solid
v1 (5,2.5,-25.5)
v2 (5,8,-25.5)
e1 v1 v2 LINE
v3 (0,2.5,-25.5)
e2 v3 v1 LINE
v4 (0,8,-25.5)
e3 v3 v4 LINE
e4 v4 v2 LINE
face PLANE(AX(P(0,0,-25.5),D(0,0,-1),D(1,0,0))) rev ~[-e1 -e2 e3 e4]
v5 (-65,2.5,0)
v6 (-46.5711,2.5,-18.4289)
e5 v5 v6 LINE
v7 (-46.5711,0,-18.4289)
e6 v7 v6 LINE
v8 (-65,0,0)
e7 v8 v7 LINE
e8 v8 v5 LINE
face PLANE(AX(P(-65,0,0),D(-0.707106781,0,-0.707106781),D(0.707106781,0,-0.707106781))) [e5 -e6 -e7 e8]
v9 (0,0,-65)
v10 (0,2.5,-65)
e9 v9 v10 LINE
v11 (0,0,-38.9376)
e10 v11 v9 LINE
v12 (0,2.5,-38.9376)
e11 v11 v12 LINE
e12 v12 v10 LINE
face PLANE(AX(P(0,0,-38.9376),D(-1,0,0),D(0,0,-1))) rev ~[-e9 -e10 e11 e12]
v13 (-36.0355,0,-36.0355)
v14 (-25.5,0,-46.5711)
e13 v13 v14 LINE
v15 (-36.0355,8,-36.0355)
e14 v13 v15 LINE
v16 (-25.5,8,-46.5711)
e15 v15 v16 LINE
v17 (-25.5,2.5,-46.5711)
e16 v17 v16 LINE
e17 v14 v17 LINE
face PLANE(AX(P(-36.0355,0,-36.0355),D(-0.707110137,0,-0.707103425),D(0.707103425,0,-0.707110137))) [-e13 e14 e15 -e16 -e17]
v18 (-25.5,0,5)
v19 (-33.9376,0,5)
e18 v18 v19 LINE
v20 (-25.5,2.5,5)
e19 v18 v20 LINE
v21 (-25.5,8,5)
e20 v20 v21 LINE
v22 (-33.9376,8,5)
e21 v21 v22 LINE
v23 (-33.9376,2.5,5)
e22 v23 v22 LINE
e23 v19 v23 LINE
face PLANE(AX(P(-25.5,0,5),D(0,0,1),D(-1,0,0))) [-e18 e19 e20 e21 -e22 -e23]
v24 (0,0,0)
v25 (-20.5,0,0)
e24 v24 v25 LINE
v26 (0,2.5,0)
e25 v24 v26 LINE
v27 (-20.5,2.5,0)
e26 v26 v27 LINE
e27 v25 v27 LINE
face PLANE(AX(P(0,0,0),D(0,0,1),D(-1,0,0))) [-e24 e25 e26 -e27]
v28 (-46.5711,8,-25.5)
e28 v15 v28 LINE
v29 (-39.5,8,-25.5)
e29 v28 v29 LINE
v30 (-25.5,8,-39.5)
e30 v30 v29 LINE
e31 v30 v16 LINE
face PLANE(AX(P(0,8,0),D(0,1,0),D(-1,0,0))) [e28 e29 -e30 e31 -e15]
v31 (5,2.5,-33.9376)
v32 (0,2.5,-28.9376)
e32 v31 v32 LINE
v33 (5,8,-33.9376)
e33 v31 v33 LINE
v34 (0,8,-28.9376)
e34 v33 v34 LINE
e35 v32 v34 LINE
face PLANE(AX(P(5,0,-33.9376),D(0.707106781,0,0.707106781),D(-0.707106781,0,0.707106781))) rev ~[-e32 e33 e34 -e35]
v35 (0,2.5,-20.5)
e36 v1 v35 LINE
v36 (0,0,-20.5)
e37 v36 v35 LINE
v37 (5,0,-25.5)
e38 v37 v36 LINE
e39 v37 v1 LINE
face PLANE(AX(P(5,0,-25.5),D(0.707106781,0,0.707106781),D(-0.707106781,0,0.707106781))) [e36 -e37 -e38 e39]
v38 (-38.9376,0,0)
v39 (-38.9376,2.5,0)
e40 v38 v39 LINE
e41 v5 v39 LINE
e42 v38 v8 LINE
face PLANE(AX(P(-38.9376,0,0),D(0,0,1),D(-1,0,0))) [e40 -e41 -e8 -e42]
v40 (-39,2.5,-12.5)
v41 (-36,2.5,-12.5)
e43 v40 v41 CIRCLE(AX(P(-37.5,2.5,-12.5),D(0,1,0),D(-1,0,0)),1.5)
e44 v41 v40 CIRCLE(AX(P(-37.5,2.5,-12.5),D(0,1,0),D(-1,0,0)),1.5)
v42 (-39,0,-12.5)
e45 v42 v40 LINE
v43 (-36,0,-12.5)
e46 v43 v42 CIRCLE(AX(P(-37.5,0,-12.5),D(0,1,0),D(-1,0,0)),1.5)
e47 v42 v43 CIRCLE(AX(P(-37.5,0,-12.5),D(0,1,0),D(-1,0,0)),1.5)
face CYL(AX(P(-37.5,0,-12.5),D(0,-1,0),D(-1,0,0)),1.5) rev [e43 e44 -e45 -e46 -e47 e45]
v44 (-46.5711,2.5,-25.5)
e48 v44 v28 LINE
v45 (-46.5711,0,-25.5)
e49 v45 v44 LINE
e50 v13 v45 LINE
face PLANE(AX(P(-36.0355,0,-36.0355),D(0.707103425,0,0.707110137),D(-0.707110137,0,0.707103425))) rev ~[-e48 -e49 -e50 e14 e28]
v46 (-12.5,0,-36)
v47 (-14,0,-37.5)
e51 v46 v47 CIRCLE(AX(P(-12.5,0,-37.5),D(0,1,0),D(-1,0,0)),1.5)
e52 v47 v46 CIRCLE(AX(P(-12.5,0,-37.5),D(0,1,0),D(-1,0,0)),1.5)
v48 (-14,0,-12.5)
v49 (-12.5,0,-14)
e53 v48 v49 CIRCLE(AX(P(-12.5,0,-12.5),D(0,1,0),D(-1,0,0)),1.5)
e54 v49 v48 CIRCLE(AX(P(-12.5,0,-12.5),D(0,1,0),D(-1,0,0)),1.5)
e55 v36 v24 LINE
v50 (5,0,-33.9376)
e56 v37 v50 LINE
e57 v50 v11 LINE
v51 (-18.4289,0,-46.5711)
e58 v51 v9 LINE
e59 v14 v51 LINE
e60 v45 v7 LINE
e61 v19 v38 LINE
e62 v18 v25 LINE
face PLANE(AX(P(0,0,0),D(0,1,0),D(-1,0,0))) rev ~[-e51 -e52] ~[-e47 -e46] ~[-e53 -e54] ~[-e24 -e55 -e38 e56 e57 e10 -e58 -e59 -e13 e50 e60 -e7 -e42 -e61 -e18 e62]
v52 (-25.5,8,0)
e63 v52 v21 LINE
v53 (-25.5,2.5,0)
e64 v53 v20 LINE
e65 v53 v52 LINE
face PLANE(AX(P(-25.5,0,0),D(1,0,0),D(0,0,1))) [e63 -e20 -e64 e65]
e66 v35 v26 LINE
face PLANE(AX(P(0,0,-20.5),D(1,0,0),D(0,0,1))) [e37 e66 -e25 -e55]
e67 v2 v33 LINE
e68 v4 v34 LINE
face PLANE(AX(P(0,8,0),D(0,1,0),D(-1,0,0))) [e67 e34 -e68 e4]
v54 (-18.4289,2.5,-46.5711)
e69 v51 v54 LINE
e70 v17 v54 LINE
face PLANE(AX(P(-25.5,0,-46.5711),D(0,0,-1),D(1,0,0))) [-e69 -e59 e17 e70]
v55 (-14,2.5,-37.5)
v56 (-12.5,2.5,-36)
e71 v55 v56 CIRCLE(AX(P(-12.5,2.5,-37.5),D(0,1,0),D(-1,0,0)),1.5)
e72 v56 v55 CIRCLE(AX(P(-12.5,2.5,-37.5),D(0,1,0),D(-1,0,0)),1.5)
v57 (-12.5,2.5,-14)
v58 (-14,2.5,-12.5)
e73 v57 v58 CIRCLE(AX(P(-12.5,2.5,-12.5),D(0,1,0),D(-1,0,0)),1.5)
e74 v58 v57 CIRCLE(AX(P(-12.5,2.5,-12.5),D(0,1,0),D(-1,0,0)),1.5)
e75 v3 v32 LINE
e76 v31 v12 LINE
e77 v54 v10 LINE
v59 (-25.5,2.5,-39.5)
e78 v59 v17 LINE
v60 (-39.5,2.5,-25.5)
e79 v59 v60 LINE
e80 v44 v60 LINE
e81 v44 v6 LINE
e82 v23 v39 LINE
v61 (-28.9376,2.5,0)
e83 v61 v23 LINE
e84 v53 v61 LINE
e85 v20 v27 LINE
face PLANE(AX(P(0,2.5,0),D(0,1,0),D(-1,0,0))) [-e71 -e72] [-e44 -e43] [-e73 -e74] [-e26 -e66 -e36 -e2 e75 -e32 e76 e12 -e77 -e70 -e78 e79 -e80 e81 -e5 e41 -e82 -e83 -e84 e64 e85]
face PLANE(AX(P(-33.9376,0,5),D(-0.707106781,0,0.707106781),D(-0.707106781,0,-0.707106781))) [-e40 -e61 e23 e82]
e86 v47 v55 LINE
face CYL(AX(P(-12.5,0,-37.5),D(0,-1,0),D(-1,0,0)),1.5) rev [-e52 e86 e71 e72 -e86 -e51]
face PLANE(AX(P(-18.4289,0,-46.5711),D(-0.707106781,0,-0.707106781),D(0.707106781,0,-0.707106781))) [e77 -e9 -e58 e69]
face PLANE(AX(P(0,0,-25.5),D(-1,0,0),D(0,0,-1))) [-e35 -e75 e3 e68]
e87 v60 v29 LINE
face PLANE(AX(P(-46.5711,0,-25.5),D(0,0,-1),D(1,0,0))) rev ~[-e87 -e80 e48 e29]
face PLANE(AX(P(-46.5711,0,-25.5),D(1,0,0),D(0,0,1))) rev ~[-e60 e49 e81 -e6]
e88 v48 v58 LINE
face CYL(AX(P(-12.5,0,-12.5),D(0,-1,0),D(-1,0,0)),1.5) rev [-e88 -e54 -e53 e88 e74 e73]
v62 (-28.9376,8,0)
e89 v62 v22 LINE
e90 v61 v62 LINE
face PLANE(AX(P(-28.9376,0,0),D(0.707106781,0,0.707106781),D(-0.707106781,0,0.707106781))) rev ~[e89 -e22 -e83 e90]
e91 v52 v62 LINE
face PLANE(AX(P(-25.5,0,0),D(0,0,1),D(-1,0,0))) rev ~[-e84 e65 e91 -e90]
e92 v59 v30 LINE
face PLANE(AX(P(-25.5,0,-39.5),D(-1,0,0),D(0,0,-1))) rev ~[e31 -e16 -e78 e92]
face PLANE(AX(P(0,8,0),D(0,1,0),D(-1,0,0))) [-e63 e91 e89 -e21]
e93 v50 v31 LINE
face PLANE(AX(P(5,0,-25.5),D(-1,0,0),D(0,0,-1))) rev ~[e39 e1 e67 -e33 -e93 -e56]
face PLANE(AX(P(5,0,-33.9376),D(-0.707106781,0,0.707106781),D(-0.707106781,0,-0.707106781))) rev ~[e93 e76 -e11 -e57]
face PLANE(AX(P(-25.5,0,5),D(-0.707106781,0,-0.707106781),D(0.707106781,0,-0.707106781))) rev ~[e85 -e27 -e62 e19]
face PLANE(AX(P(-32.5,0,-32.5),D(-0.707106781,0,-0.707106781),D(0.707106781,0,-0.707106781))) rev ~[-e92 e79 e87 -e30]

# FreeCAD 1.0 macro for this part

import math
import FreeCAD as App
import Part
import Sketcher

V = App.Vector

doc = App.newDocument("Part")
body = doc.addObject("PartDesign::Body", "Body")

sketch1 = body.newObject("Sketcher::SketchObject", "Sketch")
sketch1.AttachmentSupport = (doc.getObject("XZ_Plane"), [""])
sketch1.MapMode = "FlatFace"
sketch1.addGeometry(Part.LineSegment(V(-20.5, 0, 0), V(0, 0, 0)), False)
sketch1.addGeometry(Part.LineSegment(V(0, 0, 0), V(0, -20.5, 0)), False)
sketch1.addGeometry(Part.LineSegment(V(0, -20.5, 0), V(5, -25.5, 0)), False)
sketch1.addGeometry(Part.LineSegment(V(5, -25.5, 0), V(0, -25.5, 0)), False)
sketch1.addGeometry(Part.LineSegment(V(0, -25.5, 0), V(0, -28.9, 0)), False)
sketch1.addGeometry(Part.LineSegment(V(0, -28.9, 0), V(5, -33.9, 0)), False)
sketch1.addGeometry(Part.LineSegment(V(5, -33.9, 0), V(0, -38.9, 0)), False)
sketch1.addGeometry(Part.LineSegment(V(0, -38.9, 0), V(0, -65, 0)), False)
sketch1.addGeometry(Part.LineSegment(V(0, -65, 0), V(-18.4, -46.6, 0)), False)
sketch1.addGeometry(Part.LineSegment(V(-18.4, -46.6, 0), V(-25.5, -46.6, 0)), False)
sketch1.addGeometry(Part.LineSegment(V(-25.5, -46.6, 0), V(-25.5, -39.5, 0)), False)
sketch1.addGeometry(Part.LineSegment(V(-25.5, -39.5, 0), V(-39.5, -25.5, 0)), False)
sketch1.addGeometry(Part.LineSegment(V(-39.5, -25.5, 0), V(-46.6, -25.5, 0)), False)
sketch1.addGeometry(Part.LineSegment(V(-46.6, -25.5, 0), V(-46.6, -18.4, 0)), False)
sketch1.addGeometry(Part.LineSegment(V(-46.6, -18.4, 0), V(-65, 0, 0)), False)
sketch1.addGeometry(Part.LineSegment(V(-65, 0, 0), V(-38.9, 0, 0)), False)
sketch1.addGeometry(Part.LineSegment(V(-38.9, 0, 0), V(-33.9, 5, 0)), False)
sketch1.addGeometry(Part.LineSegment(V(-33.9, 5, 0), V(-28.9, 0, 0)), False)
sketch1.addGeometry(Part.LineSegment(V(-28.9, 0, 0), V(-25.5, 0, 0)), False)
sketch1.addGeometry(Part.LineSegment(V(-25.5, 0, 0), V(-25.5, 5, 0)), False)
sketch1.addGeometry(Part.LineSegment(V(-25.5, 5, 0), V(-20.5, 0, 0)), False)
sketch1.addGeometry(Part.Circle(V(-12.5, -37.5, 0), V(0, 0, 1), 1.5), False)
sketch1.addGeometry(Part.ArcOfCircle(Part.Circle(V(-12.5, -12.5, 0), V(0, 0, 1), 1.5), math.radians(-90), math.radians(180)), False)
sketch1.addGeometry(Part.ArcOfCircle(Part.Circle(V(-12.5, -12.5, 0), V(0, 0, 1), 1.5), math.radians(180), math.radians(270)), False)
sketch1.addGeometry(Part.Circle(V(-37.5, -12.5, 0), V(0, 0, 1), 1.5), False)
sketch1.addConstraint(Sketcher.Constraint("Coincident", 0, 2, 1, 1))
sketch1.addConstraint(Sketcher.Constraint("Coincident", 1, 2, 2, 1))
sketch1.addConstraint(Sketcher.Constraint("Coincident", 2, 2, 3, 1))
sketch1.addConstraint(Sketcher.Constraint("Coincident", 3, 2, 4, 1))
sketch1.addConstraint(Sketcher.Constraint("Coincident", 4, 2, 5, 1))
sketch1.addConstraint(Sketcher.Constraint("Coincident", 5, 2, 6, 1))
sketch1.addConstraint(Sketcher.Constraint("Coincident", 6, 2, 7, 1))
sketch1.addConstraint(Sketcher.Constraint("Coincident", 7, 2, 8, 1))
sketch1.addConstraint(Sketcher.Constraint("Coincident", 8, 2, 9, 1))
sketch1.addConstraint(Sketcher.Constraint("Coincident", 9, 2, 10, 1))
sketch1.addConstraint(Sketcher.Constraint("Coincident", 10, 2, 11, 1))
sketch1.addConstraint(Sketcher.Constraint("Coincident", 11, 2, 12, 1))
sketch1.addConstraint(Sketcher.Constraint("Coincident", 12, 2, 13, 1))
sketch1.addConstraint(Sketcher.Constraint("Coincident", 13, 2, 14, 1))
sketch1.addConstraint(Sketcher.Constraint("Coincident", 14, 2, 15, 1))
sketch1.addConstraint(Sketcher.Constraint("Coincident", 15, 2, 16, 1))
sketch1.addConstraint(Sketcher.Constraint("Coincident", 16, 2, 17, 1))
sketch1.addConstraint(Sketcher.Constraint("Coincident", 17, 2, 18, 1))
sketch1.addConstraint(Sketcher.Constraint("Coincident", 18, 2, 19, 1))
sketch1.addConstraint(Sketcher.Constraint("Coincident", 19, 2, 20, 1))
sketch1.addConstraint(Sketcher.Constraint("Coincident", 20, 2, 0, 1))
sketch1.addConstraint(Sketcher.Constraint("Tangent", 22, 1, 23, 2))
sketch1.addConstraint(Sketcher.Constraint("Coincident", 23, 1, 22, 2))
sketch1.addConstraint(Sketcher.Constraint("Horizontal", 0))
sketch1.addConstraint(Sketcher.Constraint("Vertical", 1))
sketch1.addConstraint(Sketcher.Constraint("Horizontal", 3))
sketch1.addConstraint(Sketcher.Constraint("Vertical", 4))
sketch1.addConstraint(Sketcher.Constraint("Vertical", 7))
sketch1.addConstraint(Sketcher.Constraint("Horizontal", 9))
sketch1.addConstraint(Sketcher.Constraint("Vertical", 10))
sketch1.addConstraint(Sketcher.Constraint("Horizontal", 12))
sketch1.addConstraint(Sketcher.Constraint("Vertical", 13))
sketch1.addConstraint(Sketcher.Constraint("Horizontal", 15))
sketch1.addConstraint(Sketcher.Constraint("Horizontal", 18))
sketch1.addConstraint(Sketcher.Constraint("Vertical", 19))
sketch1.addConstraint(Sketcher.Constraint("Coincident", 0, 2, -1, 1))
sketch1.addConstraint(Sketcher.Constraint("Equal", 21, 22))
sketch1.addConstraint(Sketcher.Constraint("Equal", 23, 24))
sketch1.addConstraint(Sketcher.Constraint("PointOnObject", 3, 2, -2))
sketch1.addConstraint(Sketcher.Constraint("PointOnObject", 6, 2, -2))
sketch1.addConstraint(Sketcher.Constraint("PointOnObject", 14, 2, -1))
sketch1.addConstraint(Sketcher.Constraint("PointOnObject", 17, 2, -1))
sketch1.addConstraint(Sketcher.Constraint("Parallel", 2, 5))
sketch1.addConstraint(Sketcher.Constraint("Perpendicular", 5, 6))
sketch1.addConstraint(Sketcher.Constraint("Perpendicular", 6, 8))
sketch1.addConstraint(Sketcher.Constraint("Parallel", 8, 11))
sketch1.addConstraint(Sketcher.Constraint("Parallel", 11, 14))
sketch1.addConstraint(Sketcher.Constraint("Perpendicular", 14, 16))
sketch1.addConstraint(Sketcher.Constraint("Perpendicular", 16, 17))
sketch1.addConstraint(Sketcher.Constraint("Parallel", 17, 20))
sketch1.addConstraint(Sketcher.Constraint("Horizontal", 23, 3, 24, 3))
sketch1.addConstraint(Sketcher.Constraint("Horizontal", 3, 2, 11, 2))
sketch1.addConstraint(Sketcher.Constraint("Horizontal", 16, 2, 19, 2))
sketch1.addConstraint(Sketcher.Constraint("Horizontal", 24, 3, 23, 1))
sketch1.addConstraint(Sketcher.Constraint("Vertical", 21, 3, 22, 3))
sketch1.addConstraint(Sketcher.Constraint("Vertical", 2, 2, 5, 2))
sketch1.addConstraint(Sketcher.Constraint("Vertical", 10, 2, 18, 2))
sketch1.addConstraint(Sketcher.Constraint("Vertical", 23, 3, 22, 1))
sketch1.addConstraint(Sketcher.Constraint("Equal", 9, 12))
sketch1.addConstraint(Sketcher.Constraint("Equal", 0, 1))
sketch1.addConstraint(Sketcher.Constraint("Equal", 18, 4))
sketch1.addConstraint(Sketcher.Constraint("Equal", 15, 7))
sketch1.addConstraint(Sketcher.Constraint("Equal", 12, 10))
sketch1.addConstraint(Sketcher.Constraint("Equal", 10, 13))
sketch1.addConstraint(Sketcher.Constraint("Equal", 3, 19))
sketch1.addConstraint(Sketcher.Constraint("Diameter", 21, 3.0))
sketch1.addConstraint(Sketcher.Constraint("DistanceX", 3, 2, 3, 1, 5.0))
sketch1.addConstraint(Sketcher.Constraint("DistanceY", 7, 2, -1, 1, 65.0))
sketch1.addConstraint(Sketcher.Constraint("DistanceY", 21, 3, 22, 3, 25.0))
sketch1.addConstraint(Sketcher.Constraint("DistanceX", 24, 3, 22, 3, 25.0))
sketch1.addConstraint(Sketcher.Constraint("DistanceY", 2, 2, -1, 1, 25.5))
sketch1.addConstraint(Sketcher.Constraint("DistanceY", 22, 1, -1, 1, 14.0))
sketch1.addConstraint(Sketcher.Constraint("DistanceX", 23, 1, -1, 1, 14.0))
sketch1.addConstraint(Sketcher.Constraint("DistanceX", 9, 2, 9, 1, 7.071))
sketch1.addConstraint(Sketcher.Constraint("DistanceX", 15, 1, 15, 2, 26.0624))
pad1 = body.newObject("PartDesign::Pad", "Pad")
pad1.Profile = sketch1
pad1.Length = 2.5
pad1.Reversed = True

sketch2 = body.newObject("Sketcher::SketchObject", "Sketch001")
sketch2.AttachmentSupport = (doc.getObject("XZ_Plane"), [""])
sketch2.MapMode = "FlatFace"
sketch2.addGeometry(Part.LineSegment(V(-33.9, 5, 0), V(-25.5, 5, 0)), False)
sketch2.addGeometry(Part.LineSegment(V(-25.5, 5, 0), V(-25.5, 0, 0)), False)
sketch2.addGeometry(Part.LineSegment(V(-25.5, 0, 0), V(-28.9, 0, 0)), False)
sketch2.addGeometry(Part.LineSegment(V(-28.9, 0, 0), V(-33.9, 5, 0)), False)
sketch2.addGeometry(Part.LineSegment(V(0, -25.5, 0), V(5, -25.5, 0)), False)
sketch2.addGeometry(Part.LineSegment(V(5, -25.5, 0), V(5, -33.9, 0)), False)
sketch2.addGeometry(Part.LineSegment(V(5, -33.9, 0), V(0, -28.9, 0)), False)
sketch2.addGeometry(Part.LineSegment(V(0, -28.9, 0), V(0, -25.5, 0)), False)
sketch2.addGeometry(Part.LineSegment(V(-25.5, -39.5, 0), V(-25.5, -46.6, 0)), False)
sketch2.addGeometry(Part.LineSegment(V(-25.5, -46.6, 0), V(-36, -36, 0)), False)
sketch2.addGeometry(Part.LineSegment(V(-36, -36, 0), V(-46.6, -25.5, 0)), False)
sketch2.addGeometry(Part.LineSegment(V(-46.6, -25.5, 0), V(-39.5, -25.5, 0)), False)
sketch2.addGeometry(Part.LineSegment(V(-39.5, -25.5, 0), V(-25.5, -39.5, 0)), False)
sketch2.addConstraint(Sketcher.Constraint("Coincident", 0, 2, 1, 1))
sketch2.addConstraint(Sketcher.Constraint("Coincident", 1, 2, 2, 1))
sketch2.addConstraint(Sketcher.Constraint("Coincident", 2, 2, 3, 1))
sketch2.addConstraint(Sketcher.Constraint("Coincident", 3, 2, 0, 1))
sketch2.addConstraint(Sketcher.Constraint("Coincident", 4, 2, 5, 1))
sketch2.addConstraint(Sketcher.Constraint("Coincident", 5, 2, 6, 1))
sketch2.addConstraint(Sketcher.Constraint("Coincident", 6, 2, 7, 1))
sketch2.addConstraint(Sketcher.Constraint("Coincident", 7, 2, 4, 1))
sketch2.addConstraint(Sketcher.Constraint("Coincident", 8, 2, 9, 1))
sketch2.addConstraint(Sketcher.Constraint("Coincident", 9, 2, 10, 1))
sketch2.addConstraint(Sketcher.Constraint("Coincident", 10, 2, 11, 1))
sketch2.addConstraint(Sketcher.Constraint("Coincident", 11, 2, 12, 1))
sketch2.addConstraint(Sketcher.Constraint("Coincident", 12, 2, 8, 1))
sketch2.addConstraint(Sketcher.Constraint("Horizontal", 0))
sketch2.addConstraint(Sketcher.Constraint("Vertical", 1))
sketch2.addConstraint(Sketcher.Constraint("Horizontal", 2))
sketch2.addConstraint(Sketcher.Constraint("Horizontal", 4))
sketch2.addConstraint(Sketcher.Constraint("Vertical", 5))
sketch2.addConstraint(Sketcher.Constraint("Vertical", 7))
sketch2.addConstraint(Sketcher.Constraint("Vertical", 8))
sketch2.addConstraint(Sketcher.Constraint("Horizontal", 11))
sketch2.addConstraint(Sketcher.Constraint("PointOnObject", 1, 2, -1))
sketch2.addConstraint(Sketcher.Constraint("PointOnObject", 6, 2, -2))
sketch2.addConstraint(Sketcher.Constraint("Parallel", 3, 6))
sketch2.addConstraint(Sketcher.Constraint("Parallel", 6, 9))
sketch2.addConstraint(Sketcher.Constraint("Parallel", 9, 10))
sketch2.addConstraint(Sketcher.Constraint("Parallel", 10, 12))
sketch2.addConstraint(Sketcher.Constraint("Horizontal", 7, 2, 10, 2))
sketch2.addConstraint(Sketcher.Constraint("Vertical", 1, 2, 8, 2))
sketch2.addConstraint(Sketcher.Constraint("Equal", 4, 1))
sketch2.addConstraint(Sketcher.Constraint("Equal", 0, 5))
sketch2.addConstraint(Sketcher.Constraint("Equal", 2, 7))
sketch2.addConstraint(Sketcher.Constraint("Equal", 9, 10))
sketch2.addConstraint(Sketcher.Constraint("DistanceX", 4, 1, 4, 2, 5.0))
sketch2.addConstraint(Sketcher.Constraint("DistanceX", 0, 2, -1, 1, 25.5))
sketch2.addConstraint(Sketcher.Constraint("DistanceY", 4, 2, -1, 1, 25.5))
sketch2.addConstraint(Sketcher.Constraint("DistanceX", 11, 2, 8, 2, 14.0))
sketch2.addConstraint(Sketcher.Constraint("DistanceX", 11, 1, 11, 2, 7.071))
sketch2.addConstraint(Sketcher.Constraint("DistanceX", 0, 1, 0, 2, 8.4376))
pad2 = body.newObject("PartDesign::Pad", "Pad001")
pad2.Profile = sketch2
pad2.Length = 8
pad2.Reversed = True

doc.recompute()
